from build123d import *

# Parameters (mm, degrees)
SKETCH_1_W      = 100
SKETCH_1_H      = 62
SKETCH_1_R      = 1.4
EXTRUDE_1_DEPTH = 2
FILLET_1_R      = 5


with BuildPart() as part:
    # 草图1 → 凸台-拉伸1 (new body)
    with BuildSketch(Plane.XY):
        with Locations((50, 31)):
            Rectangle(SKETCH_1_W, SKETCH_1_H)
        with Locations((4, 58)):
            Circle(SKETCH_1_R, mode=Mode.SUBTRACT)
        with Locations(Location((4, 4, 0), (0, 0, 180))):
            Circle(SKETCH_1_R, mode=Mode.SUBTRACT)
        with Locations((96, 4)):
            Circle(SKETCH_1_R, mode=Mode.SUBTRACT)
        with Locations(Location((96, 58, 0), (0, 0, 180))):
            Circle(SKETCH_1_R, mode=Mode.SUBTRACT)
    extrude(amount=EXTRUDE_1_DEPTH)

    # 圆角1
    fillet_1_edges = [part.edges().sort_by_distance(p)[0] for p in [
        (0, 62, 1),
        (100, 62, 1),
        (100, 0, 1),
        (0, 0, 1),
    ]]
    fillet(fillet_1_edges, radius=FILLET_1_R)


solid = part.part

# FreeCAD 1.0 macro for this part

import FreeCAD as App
import Part
import Sketcher
from FreeCAD import Vector


def edges_at(feature, points):
    """Names of the edges that pass closest to the given points."""
    edges = feature.Shape.Edges
    near = lambda p: min(range(len(edges)), key=lambda i: edges[i].distToShape(Part.Vertex(*p))[0])
    return sorted({f"Edge{near(p) + 1}" for p in points})


def add_polygon(sketch, points):
    """Adds a closed chain of lines whose ends are joined by coincident constraints."""
    first, n = sketch.GeometryCount, len(points)
    for a, b in zip(points, points[1:] + points[:1]):
        sketch.addGeometry(Part.LineSegment(App.Vector(*a, 0), App.Vector(*b, 0)), False)
    for i in range(n):
        sketch.addConstraint(Sketcher.Constraint("Coincident", first + i, 2, first + (i + 1) % n, 1))

doc = App.newDocument("Part")
params = doc.addObject("Spreadsheet::Sheet", "Params")
for row, (alias, value) in enumerate([
    ("sketch1_diameter", "2.8 mm"),
    ("sketch1_width", "100 mm"),
    ("sketch1_height", "62 mm"),
    ("pad1_length", "2 mm"),
    ("fillet_radius", "5 mm"),
], start=1):
    params.set(f"A{row}", alias)
    params.set(f"B{row}", "=" + value)
    params.setAlias(f"B{row}", alias)

body = doc.addObject("PartDesign::Body", "Body")

# Sketch on XY plane
sketch1 = doc.addObject("Sketcher::SketchObject", "Sketch")
body.addObject(sketch1)
sketch1.AttachmentSupport = (doc.XY_Plane, [""])
sketch1.MapMode = "FlatFace"
add_polygon(sketch1, [(0, 62), (0, 0), (100, 0), (100, 62)])  # lines 0-3
sketch1.addGeometry(Part.Circle(Vector(4, 4, 0), Vector(0, 0, 1), 1.4), False)  # 4
sketch1.addGeometry(Part.Circle(Vector(96, 4, 0), Vector(0, 0, 1), 1.4), False)  # 5
sketch1.addGeometry(Part.Circle(Vector(4, 58, 0), Vector(0, 0, 1), 1.4), False)  # 6
sketch1.addGeometry(Part.Circle(Vector(96, 58, 0), Vector(0, 0, 1), 1.4), False)  # 7
sketch1.addConstraint([
    Sketcher.Constraint("Vertical", 0),
    Sketcher.Constraint("Horizontal", 1),
    Sketcher.Constraint("Vertical", 2),
    Sketcher.Constraint("Horizontal", 3),
    Sketcher.Constraint("Coincident", 0, 2, -1, 1),
    Sketcher.Constraint("Equal", 4, 5),
    Sketcher.Constraint("Equal", 5, 6),
    Sketcher.Constraint("Equal", 6, 7),
    Sketcher.Constraint("Horizontal", 4, 3, 5, 3),
    Sketcher.Constraint("Horizontal", 6, 3, 7, 3),
    Sketcher.Constraint("Vertical", 4, 3, 6, 3),
    Sketcher.Constraint("Vertical", 5, 3, 7, 3),
    Sketcher.Constraint("Diameter", 4, 2.8),
    Sketcher.Constraint("DistanceX", 1, 1, 1, 2, 100.0),
    Sketcher.Constraint("DistanceY", 0, 2, 0, 1, 62.0),
    Sketcher.Constraint("DistanceX", -1, 1, 4, 3, 4.0),
    Sketcher.Constraint("DistanceY", -1, 1, 4, 3, 4.0),
    Sketcher.Constraint("DistanceX", -1, 1, 5, 3, 96.0),
    Sketcher.Constraint("DistanceY", -1, 1, 6, 3, 58.0),
])
sketch1.setExpression("Constraints[16]", "Params.sketch1_diameter")
sketch1.setExpression("Constraints[17]", "Params.sketch1_width")
sketch1.setExpression("Constraints[18]", "Params.sketch1_height")
pad1 = doc.addObject("PartDesign::Pad", "Pad")
body.addObject(pad1)
pad1.Profile = sketch1
pad1.setExpression("Length", "Params.pad1_length")
doc.recompute()

fillet = doc.addObject("PartDesign::Fillet", "Fillet")
body.addObject(fillet)
fillet.Base = (pad1, edges_at(pad1, [
    (0, 62, 1),
    (100, 62, 1),
    (100, 0, 1),
    (0, 0, 1),
]))
fillet.setExpression("Radius", "Params.fillet_radius")

doc.recompute()
